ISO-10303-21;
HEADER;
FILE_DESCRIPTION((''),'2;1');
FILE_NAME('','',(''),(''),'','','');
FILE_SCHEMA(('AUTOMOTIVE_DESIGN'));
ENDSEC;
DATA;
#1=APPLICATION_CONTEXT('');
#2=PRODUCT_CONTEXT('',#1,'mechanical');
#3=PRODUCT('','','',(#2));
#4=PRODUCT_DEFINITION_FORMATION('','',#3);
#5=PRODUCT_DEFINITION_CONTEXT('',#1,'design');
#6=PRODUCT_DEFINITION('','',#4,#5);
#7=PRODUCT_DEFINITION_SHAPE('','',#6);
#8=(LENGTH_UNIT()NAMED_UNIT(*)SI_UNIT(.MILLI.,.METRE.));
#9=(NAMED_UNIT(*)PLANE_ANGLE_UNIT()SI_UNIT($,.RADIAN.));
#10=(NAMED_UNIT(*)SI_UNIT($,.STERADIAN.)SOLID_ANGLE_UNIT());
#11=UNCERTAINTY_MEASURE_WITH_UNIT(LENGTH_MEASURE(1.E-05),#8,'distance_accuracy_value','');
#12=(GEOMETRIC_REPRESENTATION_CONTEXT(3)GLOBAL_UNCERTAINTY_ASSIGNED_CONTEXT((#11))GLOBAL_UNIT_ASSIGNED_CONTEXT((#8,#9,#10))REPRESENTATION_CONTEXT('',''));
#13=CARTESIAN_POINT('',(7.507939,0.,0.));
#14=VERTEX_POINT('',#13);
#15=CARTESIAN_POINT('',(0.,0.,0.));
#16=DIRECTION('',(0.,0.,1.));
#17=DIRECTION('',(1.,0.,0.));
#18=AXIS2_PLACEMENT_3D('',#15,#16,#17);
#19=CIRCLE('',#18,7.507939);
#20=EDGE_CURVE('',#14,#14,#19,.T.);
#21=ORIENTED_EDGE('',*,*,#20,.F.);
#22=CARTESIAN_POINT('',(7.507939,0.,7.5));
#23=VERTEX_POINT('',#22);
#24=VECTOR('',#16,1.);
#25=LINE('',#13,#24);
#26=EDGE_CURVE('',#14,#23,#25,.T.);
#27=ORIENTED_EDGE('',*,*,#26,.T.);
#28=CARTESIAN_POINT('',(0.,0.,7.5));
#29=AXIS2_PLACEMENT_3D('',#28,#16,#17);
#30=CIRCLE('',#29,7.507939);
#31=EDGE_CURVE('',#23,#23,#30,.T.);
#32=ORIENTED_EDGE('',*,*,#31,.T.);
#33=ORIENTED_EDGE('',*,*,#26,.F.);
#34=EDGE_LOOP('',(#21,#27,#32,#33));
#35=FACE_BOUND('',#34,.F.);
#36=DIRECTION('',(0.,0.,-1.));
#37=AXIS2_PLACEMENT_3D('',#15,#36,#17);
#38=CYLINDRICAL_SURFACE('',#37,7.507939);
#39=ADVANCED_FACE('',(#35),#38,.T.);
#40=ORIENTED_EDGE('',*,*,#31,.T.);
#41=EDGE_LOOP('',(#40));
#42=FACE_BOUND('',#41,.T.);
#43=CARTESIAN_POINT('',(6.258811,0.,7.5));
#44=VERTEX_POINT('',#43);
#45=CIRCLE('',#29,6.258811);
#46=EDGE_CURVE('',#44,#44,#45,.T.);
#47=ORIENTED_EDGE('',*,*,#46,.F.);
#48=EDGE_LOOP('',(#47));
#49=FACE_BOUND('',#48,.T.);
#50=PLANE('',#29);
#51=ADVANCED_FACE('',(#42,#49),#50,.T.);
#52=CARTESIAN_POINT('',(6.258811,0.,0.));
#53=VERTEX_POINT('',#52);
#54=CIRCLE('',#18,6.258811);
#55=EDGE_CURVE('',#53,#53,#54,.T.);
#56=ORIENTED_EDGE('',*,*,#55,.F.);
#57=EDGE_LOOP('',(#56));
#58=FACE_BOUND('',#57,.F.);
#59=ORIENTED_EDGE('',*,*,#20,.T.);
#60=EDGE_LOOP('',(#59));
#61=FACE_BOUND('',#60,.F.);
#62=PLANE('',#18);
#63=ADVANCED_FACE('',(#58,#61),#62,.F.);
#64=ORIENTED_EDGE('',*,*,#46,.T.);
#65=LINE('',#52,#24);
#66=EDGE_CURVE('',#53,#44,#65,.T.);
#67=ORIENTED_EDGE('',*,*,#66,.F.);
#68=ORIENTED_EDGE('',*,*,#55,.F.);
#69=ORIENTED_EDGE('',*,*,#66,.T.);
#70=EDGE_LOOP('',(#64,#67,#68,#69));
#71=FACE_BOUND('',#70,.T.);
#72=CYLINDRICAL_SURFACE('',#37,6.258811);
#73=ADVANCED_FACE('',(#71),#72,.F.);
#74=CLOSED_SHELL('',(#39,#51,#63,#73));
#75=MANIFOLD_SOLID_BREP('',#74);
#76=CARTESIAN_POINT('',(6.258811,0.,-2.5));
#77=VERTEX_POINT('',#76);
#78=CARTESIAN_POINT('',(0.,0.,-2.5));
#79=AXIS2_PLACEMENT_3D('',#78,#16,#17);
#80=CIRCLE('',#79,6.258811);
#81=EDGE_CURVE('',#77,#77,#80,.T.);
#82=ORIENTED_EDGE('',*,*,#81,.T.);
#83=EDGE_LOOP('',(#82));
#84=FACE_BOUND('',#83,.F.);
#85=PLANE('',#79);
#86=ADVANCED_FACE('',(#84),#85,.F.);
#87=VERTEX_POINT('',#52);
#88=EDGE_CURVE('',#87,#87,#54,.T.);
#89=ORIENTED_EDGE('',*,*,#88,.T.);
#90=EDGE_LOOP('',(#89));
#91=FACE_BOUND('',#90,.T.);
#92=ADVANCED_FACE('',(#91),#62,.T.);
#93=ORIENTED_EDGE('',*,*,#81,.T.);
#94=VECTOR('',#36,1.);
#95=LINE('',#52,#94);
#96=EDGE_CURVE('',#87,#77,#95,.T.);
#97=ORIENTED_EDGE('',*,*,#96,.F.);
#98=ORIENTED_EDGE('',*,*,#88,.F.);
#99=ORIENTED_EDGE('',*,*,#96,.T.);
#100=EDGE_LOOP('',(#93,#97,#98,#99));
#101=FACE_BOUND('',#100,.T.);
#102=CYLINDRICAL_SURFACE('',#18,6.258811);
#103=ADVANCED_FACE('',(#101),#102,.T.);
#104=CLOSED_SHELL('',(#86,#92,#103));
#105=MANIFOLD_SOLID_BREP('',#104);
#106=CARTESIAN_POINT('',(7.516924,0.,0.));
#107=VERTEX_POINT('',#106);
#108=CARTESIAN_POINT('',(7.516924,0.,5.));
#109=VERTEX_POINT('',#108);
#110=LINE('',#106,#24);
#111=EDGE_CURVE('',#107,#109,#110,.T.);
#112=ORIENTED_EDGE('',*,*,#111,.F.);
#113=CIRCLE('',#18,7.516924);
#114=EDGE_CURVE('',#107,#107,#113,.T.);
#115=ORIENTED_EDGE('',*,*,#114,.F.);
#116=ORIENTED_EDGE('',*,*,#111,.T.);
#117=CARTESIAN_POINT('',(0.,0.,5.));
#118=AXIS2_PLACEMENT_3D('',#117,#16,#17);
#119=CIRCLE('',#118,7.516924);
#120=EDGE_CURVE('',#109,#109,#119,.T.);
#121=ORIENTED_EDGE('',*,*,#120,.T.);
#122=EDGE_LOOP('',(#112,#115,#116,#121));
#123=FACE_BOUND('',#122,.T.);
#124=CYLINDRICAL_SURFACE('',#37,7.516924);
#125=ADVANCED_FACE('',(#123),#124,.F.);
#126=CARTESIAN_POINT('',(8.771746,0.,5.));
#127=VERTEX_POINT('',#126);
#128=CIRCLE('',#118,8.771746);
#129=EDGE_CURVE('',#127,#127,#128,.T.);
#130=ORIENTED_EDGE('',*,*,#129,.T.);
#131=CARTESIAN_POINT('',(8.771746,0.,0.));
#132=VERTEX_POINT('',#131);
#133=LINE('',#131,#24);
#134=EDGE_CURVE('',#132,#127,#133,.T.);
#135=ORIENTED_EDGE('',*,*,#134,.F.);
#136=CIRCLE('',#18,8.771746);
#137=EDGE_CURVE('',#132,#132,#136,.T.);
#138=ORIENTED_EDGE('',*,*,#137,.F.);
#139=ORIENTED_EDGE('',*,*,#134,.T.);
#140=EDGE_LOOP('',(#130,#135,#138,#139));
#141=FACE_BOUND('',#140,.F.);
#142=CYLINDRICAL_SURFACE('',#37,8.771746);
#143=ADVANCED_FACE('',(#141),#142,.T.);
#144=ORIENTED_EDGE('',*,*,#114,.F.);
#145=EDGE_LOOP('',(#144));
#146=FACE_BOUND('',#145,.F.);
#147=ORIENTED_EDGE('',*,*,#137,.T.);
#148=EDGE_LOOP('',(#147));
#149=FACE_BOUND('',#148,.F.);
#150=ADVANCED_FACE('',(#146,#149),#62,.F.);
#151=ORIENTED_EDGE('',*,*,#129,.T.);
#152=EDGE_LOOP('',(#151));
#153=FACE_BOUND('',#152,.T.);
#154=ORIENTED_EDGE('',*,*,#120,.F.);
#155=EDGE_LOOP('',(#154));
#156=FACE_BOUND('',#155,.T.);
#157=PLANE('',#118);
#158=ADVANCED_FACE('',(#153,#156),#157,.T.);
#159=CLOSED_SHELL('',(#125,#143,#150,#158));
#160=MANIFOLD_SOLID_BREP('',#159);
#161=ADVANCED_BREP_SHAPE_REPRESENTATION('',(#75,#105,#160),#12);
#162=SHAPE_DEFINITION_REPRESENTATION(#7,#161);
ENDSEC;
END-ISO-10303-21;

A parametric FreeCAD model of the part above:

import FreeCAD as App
import Part
import Sketcher
from FreeCAD import Vector
Q = App.Units.Quantity

doc = App.newDocument("Part")
params = doc.addObject("Spreadsheet::Sheet", "Params")
for row, (alias, value) in enumerate([
    ("pad1_length", "5 mm"),
    ("pad2_length", "7.5 mm"),
    ("pad3_length", "2.5 mm"),
], start=1):
    params.set(f"A{row}", alias)
    params.set(f"B{row}", "=" + value)
    params.setAlias(f"B{row}", alias)

body = doc.addObject("PartDesign::Body", "Body")

# Sketch on XY plane
sketch1 = doc.addObject("Sketcher::SketchObject", "Sketch")
body.addObject(sketch1)
sketch1.AttachmentSupport = (doc.XY_Plane, [""])
sketch1.MapMode = "FlatFace"
sketch1.addGeometry([
    Part.Circle(Vector(0, 0, 0), Vector(0, 0, 1), 9),
    Part.Circle(Vector(0, 0, 0), Vector(0, 0, 1), 8),
], False)
sketch1.addConstraint([
    Sketcher.Constraint("Coincident", 0, 3, -1, 1),
    Sketcher.Constraint("Coincident", 1, 3, -1, 1),
    Sketcher.Constraint("Diameter", 1, Q("15.033848 mm")),
    Sketcher.Constraint("Diameter", 0, Q("17.543492 mm")),
])
pad1 = doc.addObject("PartDesign::Pad", "Pad")
body.addObject(pad1)
pad1.Profile = sketch1
pad1.setExpression("Length", "Params.pad1_length")
body2 = doc.addObject("PartDesign::Body", "Body001")

# Sketch on XY plane
sketch2 = doc.addObject("Sketcher::SketchObject", "Sketch001")
body2.addObject(sketch2)
sketch2.AttachmentSupport = (doc.getObject("XY_Plane001"), [""])
sketch2.MapMode = "FlatFace"
sketch2.addGeometry([
    Part.Circle(Vector(0, 0, 0), Vector(0, 0, 1), 8),
    Part.Circle(Vector(0, 0, 0), Vector(0, 0, 1), 6),
], False)
sketch2.addConstraint([
    Sketcher.Constraint("Coincident", 0, 3, -1, 1),
    Sketcher.Constraint("Coincident", 1, 3, -1, 1),
    Sketcher.Constraint("Diameter", 0, Q("15.015878 mm")),
    Sketcher.Constraint("Diameter", 1, Q("12.517622 mm")),
])
pad2 = doc.addObject("PartDesign::Pad", "Pad001")
body2.addObject(pad2)
pad2.Profile = sketch2
pad2.setExpression("Length", "Params.pad2_length")
body3 = doc.addObject("PartDesign::Body", "Body002")

# Sketch on XY plane
sketch3 = doc.addObject("Sketcher::SketchObject", "Sketch002")
body3.addObject(sketch3)
sketch3.AttachmentSupport = (doc.getObject("XY_Plane002"), [""])
sketch3.MapMode = "FlatFace"
sketch3.addGeometry(Part.Circle(Vector(0, 0, 0), Vector(0, 0, 1), 6), False)
sketch3.addConstraint([
    Sketcher.Constraint("Coincident", 0, 3, -1, 1),
    Sketcher.Constraint("Diameter", 0, Q("12.517622 mm")),
])
pad3 = doc.addObject("PartDesign::Pad", "Pad002")
body3.addObject(pad3)
pad3.Profile = sketch3
pad3.setExpression("Length", "Params.pad3_length")
pad3.Reversed = True

doc.recompute()
